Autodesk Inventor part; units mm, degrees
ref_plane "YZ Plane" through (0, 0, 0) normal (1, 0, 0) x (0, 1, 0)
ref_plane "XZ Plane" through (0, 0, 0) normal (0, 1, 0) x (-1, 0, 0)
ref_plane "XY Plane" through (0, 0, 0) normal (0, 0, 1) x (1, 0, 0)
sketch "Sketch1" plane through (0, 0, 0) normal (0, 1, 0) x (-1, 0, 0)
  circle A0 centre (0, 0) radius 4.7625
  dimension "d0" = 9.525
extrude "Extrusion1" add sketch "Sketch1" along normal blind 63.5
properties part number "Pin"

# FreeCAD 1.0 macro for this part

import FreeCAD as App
import Part
import Sketcher
Q = App.Units.Quantity

doc = App.newDocument("Part")
body = doc.addObject("PartDesign::Body", "Body")

# Sketch on XZ plane
sketch1 = body.newObject("Sketcher::SketchObject", "Sketch")
sketch1.AttachmentSupport = (doc.getObject("XZ_Plane"), [""])
sketch1.MapMode = "FlatFace"
sketch1.addGeometry(Part.Circle(App.Vector(0, 0, 0), App.Vector(0, 0, 1), 4.8), False)
sketch1.addConstraint([
    Sketcher.Constraint("Coincident", 0, 3, -1, 1),
    Sketcher.Constraint("Diameter", 0, Q("0.375 in")),
])
pad1 = body.newObject("PartDesign::Pad", "Pad")
pad1.Profile = sketch1
pad1.Length = Q("2.5 in")
pad1.Reversed = True

doc.recompute()
